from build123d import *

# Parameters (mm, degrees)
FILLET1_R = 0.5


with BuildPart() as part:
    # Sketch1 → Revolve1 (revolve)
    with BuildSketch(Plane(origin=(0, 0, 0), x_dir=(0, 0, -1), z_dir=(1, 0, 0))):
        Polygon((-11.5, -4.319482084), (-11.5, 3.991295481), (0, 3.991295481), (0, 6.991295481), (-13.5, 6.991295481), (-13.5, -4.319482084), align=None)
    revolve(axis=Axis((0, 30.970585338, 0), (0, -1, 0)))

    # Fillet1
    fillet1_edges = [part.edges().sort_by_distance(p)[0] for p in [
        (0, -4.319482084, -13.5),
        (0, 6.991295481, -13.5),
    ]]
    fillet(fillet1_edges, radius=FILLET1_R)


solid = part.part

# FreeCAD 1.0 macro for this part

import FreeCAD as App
import Part
import Sketcher

V = App.Vector


def edges_at(feature, points):
    """Names of the edges that pass closest to the given points."""
    edges = feature.Shape.Edges
    near = lambda p: min(range(len(edges)), key=lambda i: edges[i].distToShape(Part.Vertex(*p))[0])
    return sorted({f"Edge{near(p) + 1}" for p in points})


def add_polygon(sketch, points):
    """Adds a closed chain of lines whose ends are joined by coincident constraints."""
    first, n = sketch.GeometryCount, len(points)
    for a, b in zip(points, points[1:] + points[:1]):
        sketch.addGeometry(Part.LineSegment(App.Vector(*a, 0), App.Vector(*b, 0)), False)
    for i in range(n):
        sketch.addConstraint(Sketcher.Constraint("Coincident", first + i, 2, first + (i + 1) % n, 1))

doc = App.newDocument("Part")
body = doc.addObject("PartDesign::Body", "Body")

# Sketch on YZ plane
sketch1 = body.newObject("Sketcher::SketchObject", "Sketch")
sketch1.AttachmentSupport = (doc.getObject("YZ_Plane"), [""])
sketch1.MapMode = "FlatFace"
add_polygon(sketch1, [(-4.3, 11.5), (4, 11.5), (4, 0), (7, 0), (7, 13.5), (-4.3, 13.5)])  # lines 0-5
sketch1.addConstraint(Sketcher.Constraint("Horizontal", 0))
sketch1.addConstraint(Sketcher.Constraint("Vertical", 1))
sketch1.addConstraint(Sketcher.Constraint("Horizontal", 2))
sketch1.addConstraint(Sketcher.Constraint("Vertical", 3))
sketch1.addConstraint(Sketcher.Constraint("Horizontal", 4))
sketch1.addConstraint(Sketcher.Constraint("Vertical", 5))
sketch1.addConstraint(Sketcher.Constraint("PointOnObject", 1, 2, -1))
sketch1.addConstraint(Sketcher.Constraint("DistanceX", 2, 1, 2, 2, 3.0))
sketch1.addConstraint(Sketcher.Constraint("DistanceY", 5, 2, 5, 1, 2.0))
sketch1.addConstraint(Sketcher.Constraint("DistanceY", 1, 2, 1, 1, 11.5))
sketch1.addConstraint(Sketcher.Constraint("DistanceX", 0, 1, 0, 2, 8.310778))
sketch1.addConstraint(Sketcher.Constraint("DistanceX", -1, 1, 0, 2, 3.991295))
revolution = body.newObject("PartDesign::Revolution", "Revolution")
revolution.Profile = sketch1
revolution.ReferenceAxis = (sketch1, ["H_Axis"])
revolution.Angle = 360
doc.recompute()

fillet = body.newObject("PartDesign::Fillet", "Fillet")
fillet.Base = (revolution, edges_at(revolution, [(0, -4.319, -13.5), (0, 6.991, -13.5)]))
fillet.Radius = 0.5

doc.recompute()
